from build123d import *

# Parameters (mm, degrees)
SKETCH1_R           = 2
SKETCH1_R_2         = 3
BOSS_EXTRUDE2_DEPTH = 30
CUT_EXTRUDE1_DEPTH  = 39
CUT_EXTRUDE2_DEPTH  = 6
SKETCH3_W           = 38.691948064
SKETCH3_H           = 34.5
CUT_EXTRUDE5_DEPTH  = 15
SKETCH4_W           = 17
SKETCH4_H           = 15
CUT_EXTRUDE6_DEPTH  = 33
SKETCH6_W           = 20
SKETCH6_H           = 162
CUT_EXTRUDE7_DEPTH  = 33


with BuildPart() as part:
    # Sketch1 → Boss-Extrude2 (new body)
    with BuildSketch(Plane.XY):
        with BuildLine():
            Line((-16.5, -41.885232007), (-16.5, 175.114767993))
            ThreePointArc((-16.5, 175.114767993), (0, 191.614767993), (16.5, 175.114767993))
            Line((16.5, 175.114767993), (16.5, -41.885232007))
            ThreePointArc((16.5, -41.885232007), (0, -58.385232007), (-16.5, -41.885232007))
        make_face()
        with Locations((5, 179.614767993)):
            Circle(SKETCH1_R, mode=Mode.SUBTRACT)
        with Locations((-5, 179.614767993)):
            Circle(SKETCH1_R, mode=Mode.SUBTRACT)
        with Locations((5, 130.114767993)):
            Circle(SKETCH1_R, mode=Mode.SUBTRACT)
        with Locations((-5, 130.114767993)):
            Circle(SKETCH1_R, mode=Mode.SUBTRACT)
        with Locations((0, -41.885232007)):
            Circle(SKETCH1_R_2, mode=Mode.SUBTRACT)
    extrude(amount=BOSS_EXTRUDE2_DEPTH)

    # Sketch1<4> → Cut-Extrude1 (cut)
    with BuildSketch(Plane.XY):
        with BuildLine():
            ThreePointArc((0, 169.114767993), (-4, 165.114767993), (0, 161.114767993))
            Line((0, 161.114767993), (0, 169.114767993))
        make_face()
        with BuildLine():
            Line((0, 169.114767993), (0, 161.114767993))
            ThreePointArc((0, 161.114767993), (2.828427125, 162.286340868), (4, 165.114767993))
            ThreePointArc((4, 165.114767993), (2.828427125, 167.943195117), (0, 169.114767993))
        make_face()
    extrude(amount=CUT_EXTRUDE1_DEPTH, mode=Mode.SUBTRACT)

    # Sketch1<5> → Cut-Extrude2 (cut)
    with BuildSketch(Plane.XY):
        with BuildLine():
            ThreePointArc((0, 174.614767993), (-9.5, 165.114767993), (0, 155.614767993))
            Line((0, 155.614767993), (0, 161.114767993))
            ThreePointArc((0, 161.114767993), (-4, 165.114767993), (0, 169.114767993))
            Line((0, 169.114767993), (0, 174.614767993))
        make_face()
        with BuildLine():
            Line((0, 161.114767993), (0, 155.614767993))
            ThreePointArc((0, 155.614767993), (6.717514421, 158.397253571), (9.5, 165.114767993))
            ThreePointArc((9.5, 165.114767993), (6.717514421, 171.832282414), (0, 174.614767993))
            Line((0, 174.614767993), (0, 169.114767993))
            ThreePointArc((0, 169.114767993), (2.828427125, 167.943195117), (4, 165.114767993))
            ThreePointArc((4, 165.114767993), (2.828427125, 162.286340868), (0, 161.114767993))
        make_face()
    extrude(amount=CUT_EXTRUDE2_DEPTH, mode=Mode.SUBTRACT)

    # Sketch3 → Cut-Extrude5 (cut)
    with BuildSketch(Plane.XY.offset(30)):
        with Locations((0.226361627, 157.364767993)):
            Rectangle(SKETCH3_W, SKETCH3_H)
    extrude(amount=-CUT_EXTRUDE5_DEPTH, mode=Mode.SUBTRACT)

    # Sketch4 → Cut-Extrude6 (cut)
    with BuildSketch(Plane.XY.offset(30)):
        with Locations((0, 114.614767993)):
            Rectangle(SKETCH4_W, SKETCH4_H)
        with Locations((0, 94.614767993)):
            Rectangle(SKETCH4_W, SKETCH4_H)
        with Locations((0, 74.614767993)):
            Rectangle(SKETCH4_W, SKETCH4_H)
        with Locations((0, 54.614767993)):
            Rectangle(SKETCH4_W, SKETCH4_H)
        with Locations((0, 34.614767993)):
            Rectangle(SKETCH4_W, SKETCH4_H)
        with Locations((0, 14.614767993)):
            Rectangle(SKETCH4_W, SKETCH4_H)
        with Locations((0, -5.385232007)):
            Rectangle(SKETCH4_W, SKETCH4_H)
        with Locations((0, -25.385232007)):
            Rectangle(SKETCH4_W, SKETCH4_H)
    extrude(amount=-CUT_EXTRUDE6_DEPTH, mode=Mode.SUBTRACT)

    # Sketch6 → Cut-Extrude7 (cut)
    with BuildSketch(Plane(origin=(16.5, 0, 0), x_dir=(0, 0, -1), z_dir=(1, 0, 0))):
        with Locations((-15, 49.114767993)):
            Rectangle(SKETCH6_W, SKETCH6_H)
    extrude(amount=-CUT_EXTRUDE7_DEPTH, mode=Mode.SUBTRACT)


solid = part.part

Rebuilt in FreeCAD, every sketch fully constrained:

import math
import FreeCAD as App
import Part
import Sketcher
from FreeCAD import Vector


def add_polygon(sketch, points):
    """Adds a closed chain of lines whose ends are joined by coincident constraints."""
    first, n = sketch.GeometryCount, len(points)
    for a, b in zip(points, points[1:] + points[:1]):
        sketch.addGeometry(Part.LineSegment(App.Vector(*a, 0), App.Vector(*b, 0)), False)
    for i in range(n):
        sketch.addConstraint(Sketcher.Constraint("Coincident", first + i, 2, first + (i + 1) % n, 1))

doc = App.newDocument("Part")
body = doc.addObject("PartDesign::Body", "Body")

# Sketch on XY plane
sketch1 = body.newObject("Sketcher::SketchObject", "Sketch")
sketch1.AttachmentSupport = (doc.getObject("XY_Plane"), [""])
sketch1.MapMode = "FlatFace"
sketch1.addGeometry([
    Part.LineSegment(Vector(-16.5, 175.1, 0), Vector(-16.5, -41.9, 0)),  # 0
    Part.ArcOfCircle(Part.Circle(Vector(0, -41.9, 0), Vector(0, 0, 1), 16.5), math.radians(180), math.radians(360)),  # 1
    Part.LineSegment(Vector(16.5, -41.9, 0), Vector(16.5, 175.1, 0)),  # 2
    Part.ArcOfCircle(Part.Circle(Vector(0, 175.1, 0), Vector(0, 0, 1), 16.5), math.radians(0), math.radians(180)),  # 3
    Part.Circle(Vector(0, -41.9, 0), Vector(0, 0, 1), 3),  # 4
    Part.Circle(Vector(5, 130.1, 0), Vector(0, 0, 1), 2),  # 5
    Part.Circle(Vector(5, 179.6, 0), Vector(0, 0, 1), 2),  # 6
    Part.Circle(Vector(-5, 130.1, 0), Vector(0, 0, 1), 2),  # 7
    Part.Circle(Vector(-5, 179.6, 0), Vector(0, 0, 1), 2),  # 8
], False)
sketch1.addConstraint([
    Sketcher.Constraint("Tangent", 0, 2, 1, 1),
    Sketcher.Constraint("Tangent", 1, 2, 2, 1),
    Sketcher.Constraint("Tangent", 2, 2, 3, 1),
    Sketcher.Constraint("Tangent", 3, 2, 0, 1),
    Sketcher.Constraint("Vertical", 0),
    Sketcher.Constraint("Vertical", 2),
    Sketcher.Constraint("Coincident", 4, 3, 1, 3),
    Sketcher.Constraint("Equal", 5, 6),
    Sketcher.Constraint("Equal", 6, 7),
    Sketcher.Constraint("Equal", 7, 8),
    Sketcher.Constraint("Symmetric", 5, 3, 7, 3, -2),
    Sketcher.Constraint("Symmetric", 6, 3, 8, 3, -2),
    Sketcher.Constraint("PointOnObject", 1, 3, -2),
    Sketcher.Constraint("Vertical", 5, 3, 6, 3),
    Sketcher.Constraint("Diameter", 4, 6.0),
    Sketcher.Constraint("Diameter", 5, 4.0),
    Sketcher.Constraint("Radius", 1, 16.5),
    Sketcher.Constraint("DistanceY", 0, 2, 0, 1, 217.0),
    Sketcher.Constraint("DistanceX", -1, 1, 5, 3, 5.0),
    Sketcher.Constraint("DistanceY", 5, 3, 3, 3, 45.0),
    Sketcher.Constraint("DistanceY", 3, 3, 6, 3, 4.5),
    Sketcher.Constraint("DistanceY", 1, 3, -1, 1, 41.885232),
])
pad1 = body.newObject("PartDesign::Pad", "Pad")
pad1.Profile = sketch1
pad1.Length = 30

# Sketch on XY plane
sketch2 = body.newObject("Sketcher::SketchObject", "Sketch001")
sketch2.AttachmentSupport = (doc.getObject("XY_Plane"), [""])
sketch2.MapMode = "FlatFace"
sketch2.addGeometry([
    Part.ArcOfCircle(Part.Circle(Vector(0, 165.1, 0), Vector(0, 0, 1), 4), math.radians(90), math.radians(270)),
    Part.ArcOfCircle(Part.Circle(Vector(0, 165.1, 0), Vector(0, 0, 1), 4), math.radians(-90), math.radians(0)),
    Part.ArcOfCircle(Part.Circle(Vector(0, 165.1, 0), Vector(0, 0, 1), 4), math.radians(0), math.radians(90)),
], False)
sketch2.addConstraint([
    Sketcher.Constraint("Tangent", 0, 2, 1, 1),
    Sketcher.Constraint("Tangent", 1, 2, 2, 1),
    Sketcher.Constraint("Tangent", 2, 2, 0, 1),
    Sketcher.Constraint("PointOnObject", 0, 3, -2),
    Sketcher.Constraint("PointOnObject", 0, 2, -2),
    Sketcher.Constraint("PointOnObject", 2, 2, -2),
    Sketcher.Constraint("Horizontal", 2, 3, 1, 2),
    Sketcher.Constraint("Radius", 0, 4.0),
    Sketcher.Constraint("DistanceY", -1, 1, 0, 3, 165.114768),
])
pocket1 = body.newObject("PartDesign::Pocket", "Pocket")
pocket1.Profile = sketch2
pocket1.Length = 39
pocket1.Reversed = True

# Sketch on XY plane
sketch3 = body.newObject("Sketcher::SketchObject", "Sketch002")
sketch3.AttachmentSupport = (doc.getObject("XY_Plane"), [""])
sketch3.MapMode = "FlatFace"
sketch3.addGeometry([
    Part.ArcOfCircle(Part.Circle(Vector(0, 165.1, 0), Vector(0, 0, 1), 9.5), math.radians(90), math.radians(270)),  # 0
    Part.ArcOfCircle(Part.Circle(Vector(0, 165.1, 0), Vector(0, 0, 1), 9.5), math.radians(-90), math.radians(0)),  # 1
    Part.ArcOfCircle(Part.Circle(Vector(0, 165.1, 0), Vector(0, 0, 1), 9.5), math.radians(0), math.radians(90)),  # 2
    Part.ArcOfCircle(Part.Circle(Vector(0, 165.1, 0), Vector(0, 0, 1), 4), math.radians(90), math.radians(270)),  # 3
    Part.ArcOfCircle(Part.Circle(Vector(0, 165.1, 0), Vector(0, 0, 1), 4), math.radians(0), math.radians(90)),  # 4
    Part.ArcOfCircle(Part.Circle(Vector(0, 165.1, 0), Vector(0, 0, 1), 4), math.radians(-90), math.radians(0)),  # 5
], False)
sketch3.addConstraint([
    Sketcher.Constraint("Tangent", 0, 2, 1, 1),
    Sketcher.Constraint("Tangent", 1, 2, 2, 1),
    Sketcher.Constraint("Tangent", 2, 2, 0, 1),
    Sketcher.Constraint("Tangent", 3, 1, 4, 2),
    Sketcher.Constraint("Tangent", 4, 1, 5, 2),
    Sketcher.Constraint("Tangent", 5, 1, 3, 2),
    Sketcher.Constraint("Coincident", 3, 3, 0, 3),
    Sketcher.Constraint("PointOnObject", 0, 3, -2),
    Sketcher.Constraint("PointOnObject", 0, 2, -2),
    Sketcher.Constraint("PointOnObject", 2, 2, -2),
    Sketcher.Constraint("PointOnObject", 3, 1, -2),
    Sketcher.Constraint("PointOnObject", 5, 1, -2),
    Sketcher.Constraint("Horizontal", 5, 3, 1, 2),
    Sketcher.Constraint("Horizontal", 1, 2, 4, 1),
    Sketcher.Constraint("Radius", 3, 4.0),
    Sketcher.Constraint("Radius", 0, 9.5),
    Sketcher.Constraint("DistanceY", -1, 1, 0, 3, 165.114768),
])
pocket2 = body.newObject("PartDesign::Pocket", "Pocket001")
pocket2.Profile = sketch3
pocket2.Length = 6
pocket2.Reversed = True

# Sketch on XY plane
sketch4 = body.newObject("Sketcher::SketchObject", "Sketch003")
sketch4.AttachmentSupport = (doc.getObject("XY_Plane"), [""])
sketch4.MapMode = "FlatFace"
sketch4.AttachmentOffset = App.Placement(Vector(0, 0, 30), App.Rotation())
add_polygon(sketch4, [(-19, 175), (-19, 140), (20, 140), (20, 175)])  # lines 0-3
sketch4.addConstraint([
    Sketcher.Constraint("Vertical", 0),
    Sketcher.Constraint("Horizontal", 1),
    Sketcher.Constraint("Vertical", 2),
    Sketcher.Constraint("Horizontal", 3),
    Sketcher.Constraint("DistanceY", 0, 2, 0, 1, 34.5),
    Sketcher.Constraint("DistanceX", 1, 1, 1, 2, 38.691948),
    Sketcher.Constraint("DistanceX", 0, 2, -1, 1, 19.119612),
    Sketcher.Constraint("DistanceY", -1, 1, 0, 2, 140.114768),
])
pocket3 = body.newObject("PartDesign::Pocket", "Pocket002")
pocket3.Profile = sketch4
pocket3.Length = 15

# Sketch on XY plane
sketch5 = body.newObject("Sketcher::SketchObject", "Sketch004")
sketch5.AttachmentSupport = (doc.getObject("XY_Plane"), [""])
sketch5.MapMode = "FlatFace"
sketch5.AttachmentOffset = App.Placement(Vector(0, 0, 30), App.Rotation())
add_polygon(sketch5, [(-8, 122), (-8, 107), (8, 107), (8, 122)])  # lines 0-3
add_polygon(sketch5, [(-8, 102), (-8, 87), (8, 87), (8, 102)])  # lines 4-7
add_polygon(sketch5, [(-8, 82), (-8, 67), (8, 67), (8, 82)])  # lines 8-11
add_polygon(sketch5, [(-8, 62), (-8, 47), (8, 47), (8, 62)])  # lines 12-15
add_polygon(sketch5, [(-8, 42), (-8, 27), (8, 27), (8, 42)])  # lines 16-19
add_polygon(sketch5, [(-8, 22), (-8, 7), (8, 7), (8, 22)])  # lines 20-23
add_polygon(sketch5, [(-8, 2), (-8, -13), (8, -13), (8, 2)])  # lines 24-27
add_polygon(sketch5, [(-8, -18), (-8, -33), (8, -33), (8, -18)])  # lines 28-31
sketch5.addConstraint([
    Sketcher.Constraint("Vertical", 0),
    Sketcher.Constraint("Horizontal", 1),
    Sketcher.Constraint("Vertical", 2),
    Sketcher.Constraint("Horizontal", 3),
    Sketcher.Constraint("Vertical", 4),
    Sketcher.Constraint("Horizontal", 5),
    Sketcher.Constraint("Vertical", 6),
    Sketcher.Constraint("Horizontal", 7),
    Sketcher.Constraint("Vertical", 8),
    Sketcher.Constraint("Horizontal", 9),
    Sketcher.Constraint("Vertical", 10),
    Sketcher.Constraint("Horizontal", 11),
    Sketcher.Constraint("Vertical", 12),
    Sketcher.Constraint("Horizontal", 13),
    Sketcher.Constraint("Vertical", 14),
    Sketcher.Constraint("Horizontal", 15),
    Sketcher.Constraint("Vertical", 16),
    Sketcher.Constraint("Horizontal", 17),
    Sketcher.Constraint("Vertical", 18),
    Sketcher.Constraint("Horizontal", 19),
    Sketcher.Constraint("Vertical", 20),
    Sketcher.Constraint("Horizontal", 21),
    Sketcher.Constraint("Vertical", 22),
    Sketcher.Constraint("Horizontal", 23),
    Sketcher.Constraint("Vertical", 24),
    Sketcher.Constraint("Horizontal", 25),
    Sketcher.Constraint("Vertical", 26),
    Sketcher.Constraint("Horizontal", 27),
    Sketcher.Constraint("Vertical", 28),
    Sketcher.Constraint("Horizontal", 29),
    Sketcher.Constraint("Vertical", 30),
    Sketcher.Constraint("Horizontal", 31),
    Sketcher.Constraint("Vertical", 3, 2, 4, 2),
    Sketcher.Constraint("Vertical", 2, 2, 5, 2),
    Sketcher.Constraint("Vertical", 7, 2, 8, 2),
    Sketcher.Constraint("Vertical", 6, 2, 9, 2),
    Sketcher.Constraint("Vertical", 11, 2, 12, 2),
    Sketcher.Constraint("Vertical", 10, 2, 13, 2),
    Sketcher.Constraint("Vertical", 15, 2, 16, 2),
    Sketcher.Constraint("Vertical", 14, 2, 17, 2),
    Sketcher.Constraint("Vertical", 19, 2, 20, 2),
    Sketcher.Constraint("Vertical", 18, 2, 21, 2),
    Sketcher.Constraint("Vertical", 23, 2, 24, 2),
    Sketcher.Constraint("Vertical", 22, 2, 25, 2),
    Sketcher.Constraint("Vertical", 27, 2, 28, 2),
    Sketcher.Constraint("Vertical", 26, 2, 29, 2),
    Sketcher.Constraint("Equal", 2, 4),
    Sketcher.Constraint("Equal", 6, 8),
    Sketcher.Constraint("Equal", 10, 12),
    Sketcher.Constraint("Equal", 14, 16),
    Sketcher.Constraint("Equal", 18, 20),
    Sketcher.Constraint("Equal", 22, 24),
    Sketcher.Constraint("Equal", 26, 28),
    Sketcher.Constraint("DistanceX", 1, 1, 1, 2, 17.0),
    Sketcher.Constraint("DistanceY", 0, 2, 0, 1, 15.0),
    Sketcher.Constraint("DistanceY", 4, 2, 0, 2, 20.0),
    Sketcher.Constraint("DistanceY", 8, 2, 4, 2, 20.0),
    Sketcher.Constraint("DistanceY", 12, 2, 8, 2, 20.0),
    Sketcher.Constraint("DistanceY", 16, 2, 12, 2, 20.0),
    Sketcher.Constraint("DistanceY", 20, 2, 16, 2, 20.0),
    Sketcher.Constraint("DistanceY", 24, 2, 20, 2, 20.0),
    Sketcher.Constraint("DistanceY", 28, 2, 24, 2, 20.0),
    Sketcher.Constraint("DistanceX", 0, 2, -1, 1, 8.5),
    Sketcher.Constraint("DistanceY", -1, 1, 0, 2, 107.114768),
])
pocket4 = body.newObject("PartDesign::Pocket", "Pocket003")
pocket4.Profile = sketch5
pocket4.Length = 33

# Sketch on YZ plane
sketch6 = body.newObject("Sketcher::SketchObject", "Sketch005")
sketch6.AttachmentSupport = (doc.getObject("YZ_Plane"), [""])
sketch6.MapMode = "FlatFace"
sketch6.AttachmentOffset = App.Placement(Vector(0, 0, 16.5), App.Rotation())
add_polygon(sketch6, [(130, 25), (-32, 25), (-32, 5), (130, 5)])  # lines 0-3
sketch6.addConstraint([
    Sketcher.Constraint("Horizontal", 0),
    Sketcher.Constraint("Vertical", 1),
    Sketcher.Constraint("Horizontal", 2),
    Sketcher.Constraint("Vertical", 3),
    Sketcher.Constraint("DistanceX", 0, 2, 0, 1, 162.0),
    Sketcher.Constraint("DistanceY", 1, 2, 1, 1, 20.0),
    Sketcher.Constraint("DistanceY", -1, 1, 0, 2, 25.0),
    Sketcher.Constraint("DistanceX", 0, 2, -1, 1, 31.885232),
])
pocket5 = body.newObject("PartDesign::Pocket", "Pocket004")
pocket5.Profile = sketch6
pocket5.Length = 33

doc.recompute()
